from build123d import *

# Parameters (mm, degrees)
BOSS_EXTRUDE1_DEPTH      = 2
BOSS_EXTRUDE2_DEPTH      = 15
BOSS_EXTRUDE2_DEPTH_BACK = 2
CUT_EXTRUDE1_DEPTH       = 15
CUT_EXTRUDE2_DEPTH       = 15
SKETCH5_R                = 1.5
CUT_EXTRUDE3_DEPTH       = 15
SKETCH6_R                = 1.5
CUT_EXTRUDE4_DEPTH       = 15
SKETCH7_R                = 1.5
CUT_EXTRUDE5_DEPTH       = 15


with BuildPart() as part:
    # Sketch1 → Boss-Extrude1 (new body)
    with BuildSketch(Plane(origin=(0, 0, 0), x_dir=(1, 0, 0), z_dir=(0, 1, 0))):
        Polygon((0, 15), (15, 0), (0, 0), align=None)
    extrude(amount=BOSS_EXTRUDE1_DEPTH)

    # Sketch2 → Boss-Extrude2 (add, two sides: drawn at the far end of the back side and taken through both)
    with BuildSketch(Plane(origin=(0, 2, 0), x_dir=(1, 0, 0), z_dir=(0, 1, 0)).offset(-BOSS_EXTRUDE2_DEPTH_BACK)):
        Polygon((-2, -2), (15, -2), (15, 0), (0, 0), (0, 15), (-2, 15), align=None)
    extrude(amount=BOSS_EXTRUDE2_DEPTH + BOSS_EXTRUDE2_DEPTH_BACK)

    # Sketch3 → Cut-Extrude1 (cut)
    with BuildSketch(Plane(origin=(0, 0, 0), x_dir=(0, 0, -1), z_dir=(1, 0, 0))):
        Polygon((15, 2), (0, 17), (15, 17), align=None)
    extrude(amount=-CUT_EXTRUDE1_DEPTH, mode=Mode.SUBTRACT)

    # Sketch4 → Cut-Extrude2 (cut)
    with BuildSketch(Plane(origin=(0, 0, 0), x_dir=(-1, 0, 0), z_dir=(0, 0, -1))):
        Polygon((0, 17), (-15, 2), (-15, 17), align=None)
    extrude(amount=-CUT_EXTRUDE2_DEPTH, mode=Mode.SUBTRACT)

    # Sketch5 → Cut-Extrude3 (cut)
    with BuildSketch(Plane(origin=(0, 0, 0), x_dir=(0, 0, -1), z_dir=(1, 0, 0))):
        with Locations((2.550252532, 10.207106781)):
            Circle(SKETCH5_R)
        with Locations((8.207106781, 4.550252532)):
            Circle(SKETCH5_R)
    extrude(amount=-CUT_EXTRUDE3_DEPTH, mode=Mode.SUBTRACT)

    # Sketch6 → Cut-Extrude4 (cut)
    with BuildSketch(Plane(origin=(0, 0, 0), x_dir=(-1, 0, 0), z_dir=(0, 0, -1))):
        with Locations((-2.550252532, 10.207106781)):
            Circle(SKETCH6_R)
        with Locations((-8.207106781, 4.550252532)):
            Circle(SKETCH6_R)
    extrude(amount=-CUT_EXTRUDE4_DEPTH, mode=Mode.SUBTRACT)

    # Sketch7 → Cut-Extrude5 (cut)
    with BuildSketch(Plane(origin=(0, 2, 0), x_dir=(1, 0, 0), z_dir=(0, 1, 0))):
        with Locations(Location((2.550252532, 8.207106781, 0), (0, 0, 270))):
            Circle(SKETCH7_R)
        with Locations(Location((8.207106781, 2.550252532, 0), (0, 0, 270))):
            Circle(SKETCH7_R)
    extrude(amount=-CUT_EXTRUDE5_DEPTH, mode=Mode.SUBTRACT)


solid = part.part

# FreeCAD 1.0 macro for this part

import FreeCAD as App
import Part
import Sketcher
Q = App.Units.Quantity


def add_polygon(sketch, points):
    """Adds a closed chain of lines whose ends are joined by coincident constraints."""
    first, n = sketch.GeometryCount, len(points)
    for a, b in zip(points, points[1:] + points[:1]):
        sketch.addGeometry(Part.LineSegment(App.Vector(*a, 0), App.Vector(*b, 0)), False)
    for i in range(n):
        sketch.addConstraint(Sketcher.Constraint("Coincident", first + i, 2, first + (i + 1) % n, 1))

doc = App.newDocument("Part")
params = doc.addObject("Spreadsheet::Sheet", "Params")
for row, (alias, value) in enumerate([
    ("sketch1_width", "15 mm"),
    ("pad1_length", "2 mm"),
    ("sketch2_width", "17 mm"),
    ("sketch2_width2", "15 mm"),
    ("pad2_length", "15 mm"),
    ("pad2_length2", "2 mm"),
    ("sketch3_width", "15 mm"),
    ("pocket1_length", "15 mm"),
    ("sketch4_width", "15 mm"),
    ("pocket2_length", "15 mm"),
    ("sketch5_diameter", "3 mm"),
    ("pocket3_length", "15 mm"),
    ("sketch6_diameter", "3 mm"),
    ("pocket4_length", "15 mm"),
    ("sketch7_diameter", "3 mm"),
    ("pocket5_length", "15 mm"),
], start=1):
    params.set(f"A{row}", alias)
    params.set(f"B{row}", "=" + value)
    params.setAlias(f"B{row}", alias)

body = doc.addObject("PartDesign::Body", "Body")

# Sketch on XZ plane
sketch1 = body.newObject("Sketcher::SketchObject", "Sketch")
sketch1.AttachmentSupport = (doc.getObject("XZ_Plane"), [""])
sketch1.MapMode = "FlatFace"
add_polygon(sketch1, [(15, 0), (0, -15), (0, 0)])  # lines 0-2
sketch1.addConstraint([
    Sketcher.Constraint("Vertical", 1),
    Sketcher.Constraint("Horizontal", 2),
    Sketcher.Constraint("Coincident", 1, 2, -1, 1),
    Sketcher.Constraint("Equal", 2, 1),
    Sketcher.Constraint("DistanceX", 2, 1, 2, 2, Q("15 mm")),
])
sketch1.setExpression("Constraints[7]", "Params.sketch1_width")
pad1 = body.newObject("PartDesign::Pad", "Pad")
pad1.Profile = sketch1
pad1.setExpression("Length", "Params.pad1_length")
pad1.Reversed = True

# Sketch on XZ plane
sketch2 = body.newObject("Sketcher::SketchObject", "Sketch001")
sketch2.AttachmentSupport = (doc.getObject("XZ_Plane"), [""])
sketch2.MapMode = "FlatFace"
sketch2.AttachmentOffset = App.Placement(App.Vector(0, 0, -2), App.Rotation())
add_polygon(sketch2, [(-2, 2), (15, 2), (15, 0), (0, 0), (0, -15), (-2, -15)])  # lines 0-5
sketch2.addConstraint([
    Sketcher.Constraint("Horizontal", 0),
    Sketcher.Constraint("Vertical", 1),
    Sketcher.Constraint("Horizontal", 2),
    Sketcher.Constraint("Vertical", 3),
    Sketcher.Constraint("Horizontal", 4),
    Sketcher.Constraint("Vertical", 5),
    Sketcher.Constraint("Coincident", 2, 2, -1, 1),
    Sketcher.Constraint("Equal", 4, 1),
    Sketcher.Constraint("Equal", 2, 3),
    Sketcher.Constraint("DistanceX", 0, 1, 0, 2, Q("17 mm")),
    Sketcher.Constraint("DistanceX", 2, 2, 2, 1, Q("15 mm")),
])
sketch2.setExpression("Constraints[15]", "Params.sketch2_width")
sketch2.setExpression("Constraints[16]", "Params.sketch2_width2")
pad2 = body.newObject("PartDesign::Pad", "Pad001")
pad2.Profile = sketch2
pad2.Type = "TwoLengths"
pad2.setExpression("Length", "Params.pad2_length")
pad2.setExpression("Length2", "Params.pad2_length2")
pad2.Reversed = True

# Sketch on YZ plane
sketch3 = body.newObject("Sketcher::SketchObject", "Sketch002")
sketch3.AttachmentSupport = (doc.getObject("YZ_Plane"), [""])
sketch3.MapMode = "FlatFace"
add_polygon(sketch3, [(17, 0), (2, -15), (17, -15)])  # lines 0-2
sketch3.addConstraint([
    Sketcher.Constraint("Horizontal", 1),
    Sketcher.Constraint("Vertical", 2),
    Sketcher.Constraint("PointOnObject", 2, 2, -1),
    Sketcher.Constraint("Equal", 1, 2),
    Sketcher.Constraint("DistanceX", 1, 1, 1, 2, Q("15 mm")),
    Sketcher.Constraint("DistanceX", -1, 1, 0, 2, Q("2 mm")),
])
sketch3.setExpression("Constraints[7]", "Params.sketch3_width")
pocket1 = body.newObject("PartDesign::Pocket", "Pocket")
pocket1.Profile = sketch3
pocket1.setExpression("Length", "Params.pocket1_length")

# Sketch on XY plane
sketch4 = body.newObject("Sketcher::SketchObject", "Sketch003")
sketch4.AttachmentSupport = (doc.getObject("XY_Plane"), [""])
sketch4.MapMode = "FlatFace"
add_polygon(sketch4, [(15, 2), (0, 17), (15, 17)])  # lines 0-2
sketch4.addConstraint([
    Sketcher.Constraint("Horizontal", 1),
    Sketcher.Constraint("Vertical", 2),
    Sketcher.Constraint("PointOnObject", 0, 2, -2),
    Sketcher.Constraint("Equal", 1, 2),
    Sketcher.Constraint("DistanceX", 1, 1, 1, 2, Q("15 mm")),
    Sketcher.Constraint("DistanceY", -1, 1, 0, 2, Q("17 mm")),
])
sketch4.setExpression("Constraints[7]", "Params.sketch4_width")
pocket2 = body.newObject("PartDesign::Pocket", "Pocket001")
pocket2.Profile = sketch4
pocket2.setExpression("Length", "Params.pocket2_length")
pocket2.Reversed = True

# Sketch on YZ plane
sketch5 = body.newObject("Sketcher::SketchObject", "Sketch004")
sketch5.AttachmentSupport = (doc.getObject("YZ_Plane"), [""])
sketch5.MapMode = "FlatFace"
sketch5.addGeometry([
    Part.Circle(App.Vector(10.2, -2.6, 0), App.Vector(0, 0, 1), 1.5),
    Part.Circle(App.Vector(4.6, -8.2, 0), App.Vector(0, 0, 1), 1.5),
], False)
sketch5.addConstraint([
    Sketcher.Constraint("Equal", 0, 1),
    Sketcher.Constraint("Diameter", 0, Q("3 mm")),
    Sketcher.Constraint("DistanceX", -1, 1, 0, 3, Q("10.207107 mm")),
    Sketcher.Constraint("DistanceY", 0, 3, -1, 1, Q("2.550253 mm")),
    Sketcher.Constraint("DistanceX", -1, 1, 1, 3, Q("4.550253 mm")),
    Sketcher.Constraint("DistanceY", 1, 3, -1, 1, Q("8.207107 mm")),
])
sketch5.setExpression("Constraints[1]", "Params.sketch5_diameter")
pocket3 = body.newObject("PartDesign::Pocket", "Pocket002")
pocket3.Profile = sketch5
pocket3.setExpression("Length", "Params.pocket3_length")

# Sketch on XY plane
sketch6 = body.newObject("Sketcher::SketchObject", "Sketch005")
sketch6.AttachmentSupport = (doc.getObject("XY_Plane"), [""])
sketch6.MapMode = "FlatFace"
sketch6.addGeometry([
    Part.Circle(App.Vector(2.6, 10.2, 0), App.Vector(0, 0, 1), 1.5),
    Part.Circle(App.Vector(8.2, 4.6, 0), App.Vector(0, 0, 1), 1.5),
], False)
sketch6.addConstraint([
    Sketcher.Constraint("Equal", 0, 1),
    Sketcher.Constraint("Diameter", 0, Q("3 mm")),
    Sketcher.Constraint("DistanceX", -1, 1, 0, 3, Q("2.550253 mm")),
    Sketcher.Constraint("DistanceY", -1, 1, 0, 3, Q("10.207107 mm")),
    Sketcher.Constraint("DistanceX", -1, 1, 1, 3, Q("8.207107 mm")),
    Sketcher.Constraint("DistanceY", -1, 1, 1, 3, Q("4.550253 mm")),
])
sketch6.setExpression("Constraints[1]", "Params.sketch6_diameter")
pocket4 = body.newObject("PartDesign::Pocket", "Pocket003")
pocket4.Profile = sketch6
pocket4.setExpression("Length", "Params.pocket4_length")
pocket4.Reversed = True

# Sketch on XZ plane
sketch7 = body.newObject("Sketcher::SketchObject", "Sketch006")
sketch7.AttachmentSupport = (doc.getObject("XZ_Plane"), [""])
sketch7.MapMode = "FlatFace"
sketch7.AttachmentOffset = App.Placement(App.Vector(0, 0, -2), App.Rotation())
sketch7.addGeometry([
    Part.Circle(App.Vector(2.6, -8.2, 0), App.Vector(0, 0, 1), 1.5),
    Part.Circle(App.Vector(8.2, -2.6, 0), App.Vector(0, 0, 1), 1.5),
], False)
sketch7.addConstraint([
    Sketcher.Constraint("Equal", 0, 1),
    Sketcher.Constraint("Diameter", 0, Q("3 mm")),
    Sketcher.Constraint("DistanceX", -1, 1, 0, 3, Q("2.550253 mm")),
    Sketcher.Constraint("DistanceY", 0, 3, -1, 1, Q("8.207107 mm")),
    Sketcher.Constraint("DistanceX", -1, 1, 1, 3, Q("8.207107 mm")),
    Sketcher.Constraint("DistanceY", 1, 3, -1, 1, Q("2.550253 mm")),
])
sketch7.setExpression("Constraints[1]", "Params.sketch7_diameter")
pocket5 = body.newObject("PartDesign::Pocket", "Pocket004")
pocket5.Profile = sketch7
pocket5.setExpression("Length", "Params.pocket5_length")
pocket5.Reversed = True

doc.recompute()
